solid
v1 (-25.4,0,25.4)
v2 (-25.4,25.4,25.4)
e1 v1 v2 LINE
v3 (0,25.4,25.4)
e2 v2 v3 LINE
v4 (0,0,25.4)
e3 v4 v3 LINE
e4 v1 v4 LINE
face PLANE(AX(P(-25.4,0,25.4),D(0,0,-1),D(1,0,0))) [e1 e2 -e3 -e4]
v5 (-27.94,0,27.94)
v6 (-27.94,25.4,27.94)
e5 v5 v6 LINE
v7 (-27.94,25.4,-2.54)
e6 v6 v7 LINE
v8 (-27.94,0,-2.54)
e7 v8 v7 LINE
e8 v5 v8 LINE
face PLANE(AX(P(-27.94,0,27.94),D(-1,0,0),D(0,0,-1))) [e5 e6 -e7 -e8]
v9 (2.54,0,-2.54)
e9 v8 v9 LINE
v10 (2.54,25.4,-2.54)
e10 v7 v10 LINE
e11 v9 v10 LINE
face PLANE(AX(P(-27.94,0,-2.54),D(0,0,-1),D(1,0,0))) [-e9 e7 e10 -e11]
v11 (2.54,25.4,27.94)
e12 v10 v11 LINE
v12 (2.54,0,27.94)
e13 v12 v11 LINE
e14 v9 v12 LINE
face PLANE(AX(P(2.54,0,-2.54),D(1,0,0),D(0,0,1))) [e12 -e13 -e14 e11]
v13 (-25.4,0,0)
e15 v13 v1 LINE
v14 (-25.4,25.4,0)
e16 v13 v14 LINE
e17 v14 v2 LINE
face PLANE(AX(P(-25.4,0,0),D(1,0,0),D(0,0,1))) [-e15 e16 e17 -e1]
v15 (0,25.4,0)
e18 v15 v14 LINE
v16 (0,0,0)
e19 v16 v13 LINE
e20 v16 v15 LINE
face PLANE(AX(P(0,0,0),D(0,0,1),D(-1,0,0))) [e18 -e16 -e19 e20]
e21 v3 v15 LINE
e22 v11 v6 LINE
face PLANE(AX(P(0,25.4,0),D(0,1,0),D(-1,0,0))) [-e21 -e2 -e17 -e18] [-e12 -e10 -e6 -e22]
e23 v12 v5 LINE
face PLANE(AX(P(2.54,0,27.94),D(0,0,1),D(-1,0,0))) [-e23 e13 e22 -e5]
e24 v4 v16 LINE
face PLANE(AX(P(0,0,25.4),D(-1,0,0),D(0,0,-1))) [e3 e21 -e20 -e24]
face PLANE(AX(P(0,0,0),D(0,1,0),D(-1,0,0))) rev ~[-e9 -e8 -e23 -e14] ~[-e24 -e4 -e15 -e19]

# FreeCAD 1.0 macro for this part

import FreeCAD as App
import Part
import Sketcher
Q = App.Units.Quantity


def add_polygon(sketch, points):
    """Adds a closed chain of lines whose ends are joined by coincident constraints."""
    first, n = sketch.GeometryCount, len(points)
    for a, b in zip(points, points[1:] + points[:1]):
        sketch.addGeometry(Part.LineSegment(App.Vector(*a, 0), App.Vector(*b, 0)), False)
    for i in range(n):
        sketch.addConstraint(Sketcher.Constraint("Coincident", first + i, 2, first + (i + 1) % n, 1))

doc = App.newDocument("Part")
body = doc.addObject("PartDesign::Body", "Body")

sketch1 = body.newObject("Sketcher::SketchObject", "Sketch")
sketch1.AttachmentSupport = (doc.getObject("XZ_Plane"), [""])
sketch1.MapMode = "FlatFace"
add_polygon(sketch1, [(-28, 28), (3, 28), (3, -3), (-28, -3)])
add_polygon(sketch1, [(-25, 0), (0, 0), (0, 25), (-25, 25)])
sketch1.addConstraint(Sketcher.Constraint("Horizontal", 0))
sketch1.addConstraint(Sketcher.Constraint("Vertical", 1))
sketch1.addConstraint(Sketcher.Constraint("Horizontal", 2))
sketch1.addConstraint(Sketcher.Constraint("Vertical", 3))
sketch1.addConstraint(Sketcher.Constraint("Horizontal", 4))
sketch1.addConstraint(Sketcher.Constraint("Vertical", 5))
sketch1.addConstraint(Sketcher.Constraint("Horizontal", 6))
sketch1.addConstraint(Sketcher.Constraint("Vertical", 7))
sketch1.addConstraint(Sketcher.Constraint("Coincident", 4, 2, -1, 1))
sketch1.addConstraint(Sketcher.Constraint("Equal", 2, 1))
sketch1.addConstraint(Sketcher.Constraint("Equal", 6, 5))
sketch1.addConstraint(Sketcher.Constraint("DistanceX", 4, 1, 4, 2, Q("1 in")))
sketch1.addConstraint(Sketcher.Constraint("DistanceX", -1, 1, 0, 2, Q("0.1 in")))
sketch1.addConstraint(Sketcher.Constraint("DistanceY", 1, 2, -1, 1, Q("0.1 in")))
sketch1.addConstraint(Sketcher.Constraint("DistanceY", 5, 2, 0, 2, Q("0.1 in")))
pad1 = body.newObject("PartDesign::Pad", "Pad")
pad1.Profile = sketch1
pad1.Length = Q("1 in")
pad1.Reversed = True

doc.recompute()
